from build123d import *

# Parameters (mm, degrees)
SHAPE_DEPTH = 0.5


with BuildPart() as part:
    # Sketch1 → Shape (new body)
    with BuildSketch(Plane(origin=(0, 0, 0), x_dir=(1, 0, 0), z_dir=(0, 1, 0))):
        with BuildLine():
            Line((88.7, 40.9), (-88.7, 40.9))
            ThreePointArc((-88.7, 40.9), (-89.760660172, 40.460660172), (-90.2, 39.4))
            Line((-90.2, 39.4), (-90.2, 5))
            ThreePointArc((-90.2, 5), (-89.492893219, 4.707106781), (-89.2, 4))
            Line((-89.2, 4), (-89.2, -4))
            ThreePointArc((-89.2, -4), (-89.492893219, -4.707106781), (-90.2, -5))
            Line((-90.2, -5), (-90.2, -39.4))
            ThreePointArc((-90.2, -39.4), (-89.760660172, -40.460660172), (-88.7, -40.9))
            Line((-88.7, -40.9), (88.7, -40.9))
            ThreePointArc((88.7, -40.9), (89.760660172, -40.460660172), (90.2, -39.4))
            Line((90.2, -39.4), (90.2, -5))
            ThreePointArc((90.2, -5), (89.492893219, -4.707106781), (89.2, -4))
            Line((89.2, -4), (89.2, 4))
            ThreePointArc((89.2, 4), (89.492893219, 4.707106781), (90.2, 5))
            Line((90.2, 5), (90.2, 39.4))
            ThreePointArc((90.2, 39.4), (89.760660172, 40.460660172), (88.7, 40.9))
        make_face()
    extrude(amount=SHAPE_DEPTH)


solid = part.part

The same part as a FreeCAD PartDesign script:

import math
import FreeCAD as App
import Part
import Sketcher

V = App.Vector

doc = App.newDocument("Part")
body = doc.addObject("PartDesign::Body", "Body")

# Sketch on XZ plane
sketch1 = body.newObject("Sketcher::SketchObject", "Sketch")
sketch1.AttachmentSupport = (doc.getObject("XZ_Plane"), [""])
sketch1.MapMode = "FlatFace"
sketch1.addGeometry(Part.LineSegment(V(88.7, -40.9, 0), V(-88.7, -40.9, 0)), False)
sketch1.addGeometry(Part.ArcOfCircle(Part.Circle(V(-88.7, -39.4, 0), V(0, 0, 1), 1.5), math.radians(180), math.radians(270)), False)
sketch1.addGeometry(Part.LineSegment(V(-90.2, -39.4, 0), V(-90.2, -5, 0)), False)
sketch1.addGeometry(Part.ArcOfCircle(Part.Circle(V(-90.2, -4, 0), V(0, 0, 1), 1), math.radians(-90), math.radians(0)), False)
sketch1.addGeometry(Part.LineSegment(V(-89.2, -4, 0), V(-89.2, 4, 0)), False)
sketch1.addGeometry(Part.ArcOfCircle(Part.Circle(V(-90.2, 4, 0), V(0, 0, 1), 1), math.radians(0), math.radians(90)), False)
sketch1.addGeometry(Part.LineSegment(V(-90.2, 5, 0), V(-90.2, 39.4, 0)), False)
sketch1.addGeometry(Part.ArcOfCircle(Part.Circle(V(-88.7, 39.4, 0), V(0, 0, 1), 1.5), math.radians(90), math.radians(180)), False)
sketch1.addGeometry(Part.LineSegment(V(-88.7, 40.9, 0), V(88.7, 40.9, 0)), False)
sketch1.addGeometry(Part.ArcOfCircle(Part.Circle(V(88.7, 39.4, 0), V(0, 0, 1), 1.5), math.radians(0), math.radians(90)), False)
sketch1.addGeometry(Part.LineSegment(V(90.2, 39.4, 0), V(90.2, 5, 0)), False)
sketch1.addGeometry(Part.ArcOfCircle(Part.Circle(V(90.2, 4, 0), V(0, 0, 1), 1), math.radians(90), math.radians(180)), False)
sketch1.addGeometry(Part.LineSegment(V(89.2, 4, 0), V(89.2, -4, 0)), False)
sketch1.addGeometry(Part.ArcOfCircle(Part.Circle(V(90.2, -4, 0), V(0, 0, 1), 1), math.radians(-180), math.radians(-90)), False)
sketch1.addGeometry(Part.LineSegment(V(90.2, -5, 0), V(90.2, -39.4, 0)), False)
sketch1.addGeometry(Part.ArcOfCircle(Part.Circle(V(88.7, -39.4, 0), V(0, 0, 1), 1.5), math.radians(-90), math.radians(0)), False)
sketch1.addConstraint(Sketcher.Constraint("Tangent", 0, 2, 1, 2))
sketch1.addConstraint(Sketcher.Constraint("Tangent", 1, 1, 2, 1))
sketch1.addConstraint(Sketcher.Constraint("Coincident", 2, 2, 3, 1))
sketch1.addConstraint(Sketcher.Constraint("Tangent", 3, 2, 4, 1))
sketch1.addConstraint(Sketcher.Constraint("Tangent", 4, 2, 5, 1))
sketch1.addConstraint(Sketcher.Constraint("Coincident", 5, 2, 6, 1))
sketch1.addConstraint(Sketcher.Constraint("Tangent", 6, 2, 7, 2))
sketch1.addConstraint(Sketcher.Constraint("Tangent", 7, 1, 8, 1))
sketch1.addConstraint(Sketcher.Constraint("Tangent", 8, 2, 9, 2))
sketch1.addConstraint(Sketcher.Constraint("Tangent", 9, 1, 10, 1))
sketch1.addConstraint(Sketcher.Constraint("Coincident", 10, 2, 11, 1))
sketch1.addConstraint(Sketcher.Constraint("Tangent", 11, 2, 12, 1))
sketch1.addConstraint(Sketcher.Constraint("Tangent", 12, 2, 13, 1))
sketch1.addConstraint(Sketcher.Constraint("Coincident", 13, 2, 14, 1))
sketch1.addConstraint(Sketcher.Constraint("Tangent", 14, 2, 15, 2))
sketch1.addConstraint(Sketcher.Constraint("Tangent", 15, 1, 0, 1))
sketch1.addConstraint(Sketcher.Constraint("Horizontal", 0))
sketch1.addConstraint(Sketcher.Constraint("Vertical", 2))
sketch1.addConstraint(Sketcher.Constraint("Vertical", 4))
sketch1.addConstraint(Sketcher.Constraint("Vertical", 6))
sketch1.addConstraint(Sketcher.Constraint("Horizontal", 8))
sketch1.addConstraint(Sketcher.Constraint("Vertical", 10))
sketch1.addConstraint(Sketcher.Constraint("Vertical", 12))
sketch1.addConstraint(Sketcher.Constraint("Vertical", 14))
sketch1.addConstraint(Sketcher.Constraint("Equal", 3, 5))
sketch1.addConstraint(Sketcher.Constraint("Equal", 1, 7))
sketch1.addConstraint(Sketcher.Constraint("Equal", 7, 9))
sketch1.addConstraint(Sketcher.Constraint("Equal", 5, 11))
sketch1.addConstraint(Sketcher.Constraint("Equal", 11, 13))
sketch1.addConstraint(Sketcher.Constraint("Equal", 9, 15))
sketch1.addConstraint(Sketcher.Constraint("Symmetric", 1, 3, 9, 3, -1, 1))
sketch1.addConstraint(Sketcher.Constraint("Symmetric", 3, 3, 11, 3, -1, 1))
sketch1.addConstraint(Sketcher.Constraint("Symmetric", 5, 2, 13, 2, -1, 1))
sketch1.addConstraint(Sketcher.Constraint("Symmetric", 5, 2, 10, 2, -2))
sketch1.addConstraint(Sketcher.Constraint("Vertical", 5, 3, 1, 1))
sketch1.addConstraint(Sketcher.Constraint("Radius", 3, 1.0))
sketch1.addConstraint(Sketcher.Constraint("Radius", 1, 1.5))
sketch1.addConstraint(Sketcher.Constraint("DistanceY", 4, 1, 4, 2, 8.0))
sketch1.addConstraint(Sketcher.Constraint("DistanceX", 0, 2, 0, 1, 177.4))
sketch1.addConstraint(Sketcher.Constraint("DistanceY", 2, 1, 2, 2, 34.4))
pad1 = body.newObject("PartDesign::Pad", "Pad")
pad1.Profile = sketch1
pad1.Length = 0.5
pad1.Reversed = True

doc.recompute()
